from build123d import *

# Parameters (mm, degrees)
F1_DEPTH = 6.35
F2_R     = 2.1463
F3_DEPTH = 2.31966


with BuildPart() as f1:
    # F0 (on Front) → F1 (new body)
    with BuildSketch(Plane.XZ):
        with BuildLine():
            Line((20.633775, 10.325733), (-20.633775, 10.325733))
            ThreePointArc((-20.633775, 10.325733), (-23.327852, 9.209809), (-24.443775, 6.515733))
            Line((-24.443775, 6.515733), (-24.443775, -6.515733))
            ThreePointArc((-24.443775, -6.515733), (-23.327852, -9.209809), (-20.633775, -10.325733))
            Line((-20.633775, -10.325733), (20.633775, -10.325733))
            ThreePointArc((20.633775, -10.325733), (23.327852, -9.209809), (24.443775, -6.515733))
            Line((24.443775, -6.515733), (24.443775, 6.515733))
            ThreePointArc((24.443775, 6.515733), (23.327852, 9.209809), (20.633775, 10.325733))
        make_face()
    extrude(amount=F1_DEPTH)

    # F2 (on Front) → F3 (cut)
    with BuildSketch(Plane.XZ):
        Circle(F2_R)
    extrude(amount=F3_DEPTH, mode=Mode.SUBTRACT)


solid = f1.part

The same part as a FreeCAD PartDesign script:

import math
import FreeCAD as App
import Part
import Sketcher
Q = App.Units.Quantity

doc = App.newDocument("Part")
body = doc.addObject("PartDesign::Body", "Body")

sketch1 = body.newObject("Sketcher::SketchObject", "Sketch")
sketch1.AttachmentSupport = (doc.getObject("XZ_Plane"), [""])
sketch1.MapMode = "FlatFace"
sketch1.addGeometry([
    Part.LineSegment(App.Vector(20.633775, 10.325733, 0), App.Vector(-20.633775, 10.325733, 0)),
    Part.ArcOfCircle(Part.Circle(App.Vector(-20.633774, 6.515732, 0), App.Vector(0, 0, 1), 3.810001), math.radians(90.000017), math.radians(179.999983)),
    Part.LineSegment(App.Vector(-24.443775, 6.515733, 0), App.Vector(-24.443775, -6.515733, 0)),
    Part.ArcOfCircle(Part.Circle(App.Vector(-20.633774, -6.515732, 0), App.Vector(0, 0, 1), 3.810001), math.radians(-179.999983), math.radians(-90.000017)),
    Part.LineSegment(App.Vector(-20.633775, -10.325733, 0), App.Vector(20.633775, -10.325733, 0)),
    Part.ArcOfCircle(Part.Circle(App.Vector(20.633774, -6.515732, 0), App.Vector(0, 0, 1), 3.810001), math.radians(-89.999983), math.radians(-0.000017)),
    Part.LineSegment(App.Vector(24.443775, -6.515733, 0), App.Vector(24.443775, 6.515733, 0)),
    Part.ArcOfCircle(Part.Circle(App.Vector(20.633774, 6.515732, 0), App.Vector(0, 0, 1), 3.810001), math.radians(0.000017), math.radians(89.999983)),
], False)
sketch1.addConstraint([
    Sketcher.Constraint("Tangent", 0, 2, 1, 1),
    Sketcher.Constraint("Tangent", 1, 2, 2, 1),
    Sketcher.Constraint("Tangent", 2, 2, 3, 1),
    Sketcher.Constraint("Tangent", 3, 2, 4, 1),
    Sketcher.Constraint("Tangent", 4, 2, 5, 1),
    Sketcher.Constraint("Tangent", 5, 2, 6, 1),
    Sketcher.Constraint("Tangent", 6, 2, 7, 1),
    Sketcher.Constraint("Tangent", 7, 2, 0, 1),
    Sketcher.Constraint("Horizontal", 0),
    Sketcher.Constraint("Vertical", 2),
    Sketcher.Constraint("Horizontal", 4),
    Sketcher.Constraint("Vertical", 6),
    Sketcher.Constraint("Equal", 1, 3),
    Sketcher.Constraint("Equal", 3, 5),
    Sketcher.Constraint("Equal", 5, 7),
    Sketcher.Constraint("Symmetric", 1, 3, 5, 3, -1, 1),
    Sketcher.Constraint("Radius", 1, Q("0.15 in")),
    Sketcher.Constraint("DistanceX", 0, 2, 0, 1, 41.26755),
    Sketcher.Constraint("DistanceY", 2, 2, 2, 1, 13.031466),
])
pad1 = body.newObject("PartDesign::Pad", "Pad")
pad1.Profile = sketch1
pad1.Length = Q("0.25 in")

sketch2 = body.newObject("Sketcher::SketchObject", "Sketch001")
sketch2.AttachmentSupport = (doc.getObject("XZ_Plane"), [""])
sketch2.MapMode = "FlatFace"
sketch2.addGeometry(Part.Circle(App.Vector(0, 0, 0), App.Vector(0, 0, 1), 2.1463), False)
sketch2.addConstraint([
    Sketcher.Constraint("Coincident", 0, 3, -1, 1),
    Sketcher.Constraint("Diameter", 0, Q("0.169 in")),
])
pocket1 = body.newObject("PartDesign::Pocket", "Pocket")
pocket1.Profile = sketch2
pocket1.Length = 2.31966
pocket1.Reversed = True

doc.recompute()
